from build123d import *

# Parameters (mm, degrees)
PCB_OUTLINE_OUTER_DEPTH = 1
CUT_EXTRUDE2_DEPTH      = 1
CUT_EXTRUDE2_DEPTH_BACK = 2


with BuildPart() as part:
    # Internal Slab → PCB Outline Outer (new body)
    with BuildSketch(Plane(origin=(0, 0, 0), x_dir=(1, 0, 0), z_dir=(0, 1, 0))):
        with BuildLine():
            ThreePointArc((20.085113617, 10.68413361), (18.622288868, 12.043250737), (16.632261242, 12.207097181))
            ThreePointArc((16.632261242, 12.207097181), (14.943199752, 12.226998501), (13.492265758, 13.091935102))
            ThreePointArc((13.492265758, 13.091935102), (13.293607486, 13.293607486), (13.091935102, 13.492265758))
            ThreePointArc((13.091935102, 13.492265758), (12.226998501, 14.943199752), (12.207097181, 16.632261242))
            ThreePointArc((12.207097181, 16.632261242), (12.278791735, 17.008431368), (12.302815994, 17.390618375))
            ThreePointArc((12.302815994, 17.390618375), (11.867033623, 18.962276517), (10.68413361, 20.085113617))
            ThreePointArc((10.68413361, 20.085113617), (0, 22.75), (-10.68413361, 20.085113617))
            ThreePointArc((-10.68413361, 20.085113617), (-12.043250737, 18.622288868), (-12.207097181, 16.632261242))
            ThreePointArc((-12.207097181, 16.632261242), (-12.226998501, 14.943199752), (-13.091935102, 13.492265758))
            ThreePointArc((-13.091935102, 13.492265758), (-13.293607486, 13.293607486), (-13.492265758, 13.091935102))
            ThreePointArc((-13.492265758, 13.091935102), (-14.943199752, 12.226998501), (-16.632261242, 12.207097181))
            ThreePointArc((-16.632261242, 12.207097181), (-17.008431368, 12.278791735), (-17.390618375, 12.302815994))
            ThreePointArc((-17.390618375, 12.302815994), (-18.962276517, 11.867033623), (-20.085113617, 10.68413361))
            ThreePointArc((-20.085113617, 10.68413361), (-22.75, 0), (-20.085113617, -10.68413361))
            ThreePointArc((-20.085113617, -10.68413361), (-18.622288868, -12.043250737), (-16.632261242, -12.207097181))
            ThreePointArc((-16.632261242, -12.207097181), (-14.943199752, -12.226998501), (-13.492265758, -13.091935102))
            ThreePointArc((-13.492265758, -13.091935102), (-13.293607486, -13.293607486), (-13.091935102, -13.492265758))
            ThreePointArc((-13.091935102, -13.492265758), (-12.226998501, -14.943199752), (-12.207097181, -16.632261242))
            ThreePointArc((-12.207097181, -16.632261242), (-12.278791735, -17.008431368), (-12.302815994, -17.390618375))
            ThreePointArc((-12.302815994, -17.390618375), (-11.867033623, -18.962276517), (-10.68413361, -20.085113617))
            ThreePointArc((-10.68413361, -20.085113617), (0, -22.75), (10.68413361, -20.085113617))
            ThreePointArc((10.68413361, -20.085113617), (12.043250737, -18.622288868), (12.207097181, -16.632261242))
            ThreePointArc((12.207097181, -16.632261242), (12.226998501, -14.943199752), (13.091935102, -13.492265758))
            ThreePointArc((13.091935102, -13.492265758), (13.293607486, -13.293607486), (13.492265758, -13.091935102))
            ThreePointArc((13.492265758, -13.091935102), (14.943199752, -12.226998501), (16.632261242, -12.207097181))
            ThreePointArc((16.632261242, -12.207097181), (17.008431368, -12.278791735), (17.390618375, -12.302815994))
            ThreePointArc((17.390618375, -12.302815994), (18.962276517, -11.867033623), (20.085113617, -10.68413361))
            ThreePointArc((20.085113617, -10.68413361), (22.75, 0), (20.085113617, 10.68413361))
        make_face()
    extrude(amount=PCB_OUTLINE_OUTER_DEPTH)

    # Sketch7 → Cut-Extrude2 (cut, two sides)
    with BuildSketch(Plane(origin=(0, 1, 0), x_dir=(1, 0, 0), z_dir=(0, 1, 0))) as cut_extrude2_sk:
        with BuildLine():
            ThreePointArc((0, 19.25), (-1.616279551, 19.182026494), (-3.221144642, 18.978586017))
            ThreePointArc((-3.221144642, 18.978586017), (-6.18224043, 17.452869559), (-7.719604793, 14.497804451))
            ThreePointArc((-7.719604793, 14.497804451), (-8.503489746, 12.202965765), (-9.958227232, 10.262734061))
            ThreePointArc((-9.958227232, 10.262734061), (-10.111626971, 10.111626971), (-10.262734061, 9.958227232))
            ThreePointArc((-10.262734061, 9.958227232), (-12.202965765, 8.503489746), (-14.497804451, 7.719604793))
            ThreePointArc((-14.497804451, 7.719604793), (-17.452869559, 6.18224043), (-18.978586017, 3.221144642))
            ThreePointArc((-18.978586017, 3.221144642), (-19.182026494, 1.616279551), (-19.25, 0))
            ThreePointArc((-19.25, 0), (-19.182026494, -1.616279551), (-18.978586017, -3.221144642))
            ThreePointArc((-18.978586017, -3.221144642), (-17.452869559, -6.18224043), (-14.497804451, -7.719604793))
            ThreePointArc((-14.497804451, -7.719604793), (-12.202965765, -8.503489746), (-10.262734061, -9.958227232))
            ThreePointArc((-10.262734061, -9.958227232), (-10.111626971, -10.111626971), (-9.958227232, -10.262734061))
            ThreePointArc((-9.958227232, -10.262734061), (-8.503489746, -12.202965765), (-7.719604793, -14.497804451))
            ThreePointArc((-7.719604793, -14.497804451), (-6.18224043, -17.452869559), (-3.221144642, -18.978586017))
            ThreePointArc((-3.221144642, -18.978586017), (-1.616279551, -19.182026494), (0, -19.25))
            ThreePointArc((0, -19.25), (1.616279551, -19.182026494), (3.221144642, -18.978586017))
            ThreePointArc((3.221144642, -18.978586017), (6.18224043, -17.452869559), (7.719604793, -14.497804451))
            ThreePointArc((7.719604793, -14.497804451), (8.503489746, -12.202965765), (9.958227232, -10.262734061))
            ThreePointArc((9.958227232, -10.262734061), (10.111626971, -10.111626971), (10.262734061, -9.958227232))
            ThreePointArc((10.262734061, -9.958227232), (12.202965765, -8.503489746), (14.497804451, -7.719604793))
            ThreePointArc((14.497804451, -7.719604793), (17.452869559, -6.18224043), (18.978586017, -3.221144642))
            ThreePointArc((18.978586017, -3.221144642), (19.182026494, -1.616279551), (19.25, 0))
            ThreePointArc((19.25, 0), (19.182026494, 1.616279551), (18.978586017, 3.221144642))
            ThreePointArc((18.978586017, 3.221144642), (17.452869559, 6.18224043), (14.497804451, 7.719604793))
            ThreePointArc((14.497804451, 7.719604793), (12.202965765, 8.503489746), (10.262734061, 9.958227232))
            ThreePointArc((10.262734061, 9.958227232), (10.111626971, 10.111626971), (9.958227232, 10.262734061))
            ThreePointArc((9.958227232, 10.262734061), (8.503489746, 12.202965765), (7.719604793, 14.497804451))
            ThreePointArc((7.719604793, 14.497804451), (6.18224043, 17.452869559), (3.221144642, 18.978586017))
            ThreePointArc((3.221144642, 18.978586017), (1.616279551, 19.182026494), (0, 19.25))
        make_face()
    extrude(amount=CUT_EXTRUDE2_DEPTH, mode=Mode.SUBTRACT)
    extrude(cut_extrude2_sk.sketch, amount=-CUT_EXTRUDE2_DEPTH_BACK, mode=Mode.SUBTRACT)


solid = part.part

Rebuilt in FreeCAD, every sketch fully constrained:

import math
import FreeCAD as App
import Part
import Sketcher
from FreeCAD import Vector

doc = App.newDocument("Part")
body = doc.addObject("PartDesign::Body", "Body")

sketch1 = doc.addObject("Sketcher::SketchObject", "Sketch")
body.addObject(sketch1)
sketch1.AttachmentSupport = (doc.XZ_Plane, [""])
sketch1.MapMode = "FlatFace"
sketch1.addGeometry([
    Part.ArcOfCircle(Part.Circle(Vector(17.4, -9.3, 0), Vector(0, 0, 1), 3.1), math.radians(-104), math.radians(-28)),
    Part.ArcOfCircle(Part.Circle(Vector(15.8, -15.4, 0), Vector(0, 0, 1), 3.2), math.radians(76), math.radians(136)),
    Part.ArcOfCircle(Part.Circle(Vector(0, 0, 0), Vector(0, 0, 1), 18.8), math.radians(-45.86), math.radians(-44.14)),
    Part.ArcOfCircle(Part.Circle(Vector(15.4, -15.8, 0), Vector(0, 0, 1), 3.2), math.radians(134), math.radians(194)),
    Part.ArcOfCircle(Part.Circle(Vector(9.3, -17.4, 0), Vector(0, 0, 1), 3.1), math.radians(0), math.radians(14.39)),
    Part.ArcOfCircle(Part.Circle(Vector(9.3, -17.4, 0), Vector(0, 0, 1), 3.1), math.radians(-62), math.radians(0)),
    Part.ArcOfCircle(Part.Circle(Vector(0, 0, 0), Vector(0, 0, 1), 22.8), math.radians(-118), math.radians(-62)),
    Part.ArcOfCircle(Part.Circle(Vector(-9.3, -17.4, 0), Vector(0, 0, 1), 3.1), math.radians(166), math.radians(242)),
    Part.ArcOfCircle(Part.Circle(Vector(-15.4, -15.8, 0), Vector(0, 0, 1), 3.2), math.radians(-14), math.radians(46)),
    Part.ArcOfCircle(Part.Circle(Vector(0, 0, 0), Vector(0, 0, 1), 18.8), math.radians(-135.86), math.radians(-134.14)),
    Part.ArcOfCircle(Part.Circle(Vector(-15.8, -15.4, 0), Vector(0, 0, 1), 3.2), math.radians(44), math.radians(104)),
    Part.ArcOfCircle(Part.Circle(Vector(-17.4, -9.3, 0), Vector(0, 0, 1), 3.1), math.radians(-90), math.radians(-75.61)),
    Part.ArcOfCircle(Part.Circle(Vector(-17.4, -9.3, 0), Vector(0, 0, 1), 3.1), math.radians(-152), math.radians(-90)),
    Part.ArcOfCircle(Part.Circle(Vector(0, 0, 0), Vector(0, 0, 1), 22.8), math.radians(152), math.radians(208)),
    Part.ArcOfCircle(Part.Circle(Vector(-17.4, 9.3, 0), Vector(0, 0, 1), 3.1), math.radians(76), math.radians(152)),
    Part.ArcOfCircle(Part.Circle(Vector(-15.8, 15.4, 0), Vector(0, 0, 1), 3.2), math.radians(-104), math.radians(-44)),
    Part.ArcOfCircle(Part.Circle(Vector(0, 0, 0), Vector(0, 0, 1), 18.8), math.radians(134.14), math.radians(135.86)),
    Part.ArcOfCircle(Part.Circle(Vector(-15.4, 15.8, 0), Vector(0, 0, 1), 3.2), math.radians(-46), math.radians(14)),
    Part.ArcOfCircle(Part.Circle(Vector(-9.3, 17.4, 0), Vector(0, 0, 1), 3.1), math.radians(-180), math.radians(-165.61)),
    Part.ArcOfCircle(Part.Circle(Vector(-9.3, 17.4, 0), Vector(0, 0, 1), 3.1), math.radians(118), math.radians(180)),
    Part.ArcOfCircle(Part.Circle(Vector(0, 0, 0), Vector(0, 0, 1), 22.8), math.radians(62), math.radians(118)),
    Part.ArcOfCircle(Part.Circle(Vector(9.3, 17.4, 0), Vector(0, 0, 1), 3.1), math.radians(-14), math.radians(62)),
    Part.ArcOfCircle(Part.Circle(Vector(15.4, 15.8, 0), Vector(0, 0, 1), 3.2), math.radians(166), math.radians(226)),
    Part.ArcOfCircle(Part.Circle(Vector(0, 0, 0), Vector(0, 0, 1), 18.8), math.radians(44.14), math.radians(45.86)),
    Part.ArcOfCircle(Part.Circle(Vector(15.8, 15.4, 0), Vector(0, 0, 1), 3.2), math.radians(-136), math.radians(-76)),
    Part.ArcOfCircle(Part.Circle(Vector(17.4, 9.3, 0), Vector(0, 0, 1), 3.1), math.radians(90), math.radians(104.39)),
    Part.ArcOfCircle(Part.Circle(Vector(17.4, 9.3, 0), Vector(0, 0, 1), 3.1), math.radians(28), math.radians(90)),
    Part.ArcOfCircle(Part.Circle(Vector(0, 0, 0), Vector(0, 0, 1), 22.8), math.radians(-28), math.radians(28)),
], False)
sketch1.addConstraint([
    Sketcher.Constraint("Tangent", 0, 1, 1, 1),
    Sketcher.Constraint("Tangent", 1, 2, 2, 2),
    Sketcher.Constraint("Tangent", 2, 1, 3, 1),
    Sketcher.Constraint("Tangent", 3, 2, 4, 2),
    Sketcher.Constraint("Tangent", 4, 1, 5, 2),
    Sketcher.Constraint("Tangent", 5, 1, 6, 2),
    Sketcher.Constraint("Tangent", 6, 1, 7, 2),
    Sketcher.Constraint("Tangent", 7, 1, 8, 1),
    Sketcher.Constraint("Tangent", 8, 2, 9, 2),
    Sketcher.Constraint("Tangent", 9, 1, 10, 1),
    Sketcher.Constraint("Tangent", 10, 2, 11, 2),
    Sketcher.Constraint("Tangent", 11, 1, 12, 2),
    Sketcher.Constraint("Tangent", 12, 1, 13, 2),
    Sketcher.Constraint("Tangent", 13, 1, 14, 2),
    Sketcher.Constraint("Tangent", 14, 1, 15, 1),
    Sketcher.Constraint("Tangent", 15, 2, 16, 2),
    Sketcher.Constraint("Tangent", 16, 1, 17, 1),
    Sketcher.Constraint("Tangent", 17, 2, 18, 2),
    Sketcher.Constraint("Tangent", 18, 1, 19, 2),
    Sketcher.Constraint("Tangent", 19, 1, 20, 2),
    Sketcher.Constraint("Tangent", 20, 1, 21, 2),
    Sketcher.Constraint("Tangent", 21, 1, 22, 1),
    Sketcher.Constraint("Tangent", 22, 2, 23, 2),
    Sketcher.Constraint("Tangent", 23, 1, 24, 1),
    Sketcher.Constraint("Tangent", 24, 2, 25, 2),
    Sketcher.Constraint("Tangent", 25, 1, 26, 2),
    Sketcher.Constraint("Tangent", 26, 1, 27, 2),
    Sketcher.Constraint("Tangent", 27, 1, 0, 2),
    Sketcher.Constraint("Coincident", 2, 3, -1, 1),
    Sketcher.Constraint("Coincident", 6, 3, -1, 1),
    Sketcher.Constraint("Coincident", 9, 3, -1, 1),
    Sketcher.Constraint("Coincident", 13, 3, -1, 1),
    Sketcher.Constraint("Coincident", 16, 3, -1, 1),
    Sketcher.Constraint("Coincident", 20, 3, -1, 1),
    Sketcher.Constraint("Coincident", 23, 3, -1, 1),
    Sketcher.Constraint("Coincident", 27, 3, -1, 1),
    Sketcher.Constraint("Equal", 1, 3),
    Sketcher.Constraint("Equal", 0, 4),
    Sketcher.Constraint("Equal", 4, 5),
    Sketcher.Constraint("Equal", 5, 7),
    Sketcher.Constraint("Equal", 3, 8),
    Sketcher.Constraint("Equal", 2, 9),
    Sketcher.Constraint("Equal", 8, 10),
    Sketcher.Constraint("Equal", 7, 11),
    Sketcher.Constraint("Equal", 11, 12),
    Sketcher.Constraint("Equal", 6, 13),
    Sketcher.Constraint("Equal", 12, 14),
    Sketcher.Constraint("Equal", 10, 15),
    Sketcher.Constraint("Equal", 9, 16),
    Sketcher.Constraint("Equal", 15, 17),
    Sketcher.Constraint("Equal", 14, 18),
    Sketcher.Constraint("Equal", 18, 19),
    Sketcher.Constraint("Equal", 13, 20),
    Sketcher.Constraint("Equal", 19, 21),
    Sketcher.Constraint("Equal", 17, 22),
    Sketcher.Constraint("Equal", 16, 23),
    Sketcher.Constraint("Equal", 22, 24),
    Sketcher.Constraint("Equal", 21, 25),
    Sketcher.Constraint("Equal", 25, 26),
    Sketcher.Constraint("Equal", 20, 27),
    Sketcher.Constraint("Symmetric", 4, 1, 18, 1, -1, 1),
    Sketcher.Constraint("Symmetric", 11, 1, 25, 1, -1, 1),
    Sketcher.Constraint("Horizontal", 5, 3, 7, 3),
    Sketcher.Constraint("Horizontal", 1, 3, 10, 3),
    Sketcher.Constraint("Horizontal", 19, 3, 21, 3),
    Sketcher.Constraint("Horizontal", 15, 3, 24, 3),
    Sketcher.Constraint("Horizontal", 7, 3, 4, 1),
    Sketcher.Constraint("Vertical", 14, 3, 11, 1),
    Sketcher.Constraint("Radius", 1, 3.25),
    Sketcher.Constraint("Radius", 6, 22.75),
    Sketcher.Constraint("Radius", 0, 3.052),
    Sketcher.Constraint("Radius", 2, 18.800004),
    Sketcher.Constraint("DistanceY", 1, 2, 27, 1, 2.407801),
    Sketcher.Constraint("DistanceX", -1, 1, 3, 3, 15.355169),
])
pad1 = doc.addObject("PartDesign::Pad", "Pad")
body.addObject(pad1)
pad1.Profile = sketch1
pad1.Length = 1
pad1.Reversed = True

sketch2 = doc.addObject("Sketcher::SketchObject", "Sketch001")
body.addObject(sketch2)
sketch2.AttachmentSupport = (doc.XZ_Plane, [""])
sketch2.MapMode = "FlatFace"
sketch2.AttachmentOffset = App.Placement(Vector(0, 0, -1), App.Rotation())
sketch2.addGeometry([
    Part.ArcOfCircle(Part.Circle(Vector(0, 0, 0), Vector(0, 0, 1), 19.25), math.radians(-99.63), math.radians(-90)),
    Part.ArcOfCircle(Part.Circle(Vector(-2.3, -13.56, 0), Vector(0, 0, 1), 5.5), math.radians(-170), math.radians(-100)),
    Part.ArcOfCircle(Part.Circle(Vector(-15.36, -15.82, 0), Vector(0, 0, 1), 7.75), math.radians(10), math.radians(46)),
    Part.ArcOfCircle(Part.Circle(Vector(0, 0, 0), Vector(0, 0, 1), 14.3), math.radians(-135.86), math.radians(-134.14)),
    Part.ArcOfCircle(Part.Circle(Vector(-15.82, -15.36, 0), Vector(0, 0, 1), 7.75), math.radians(44), math.radians(80)),
    Part.ArcOfCircle(Part.Circle(Vector(-13.56, -2.3, 0), Vector(0, 0, 1), 5.5), math.radians(-170), math.radians(-100)),
    Part.ArcOfCircle(Part.Circle(Vector(0, 0, 0), Vector(0, 0, 1), 19.25), math.radians(180), math.radians(189.63)),
    Part.ArcOfCircle(Part.Circle(Vector(0, 0, 0), Vector(0, 0, 1), 19.25), math.radians(170.37), math.radians(180)),
    Part.ArcOfCircle(Part.Circle(Vector(-13.56, 2.3, 0), Vector(0, 0, 1), 5.5), math.radians(100), math.radians(170)),
    Part.ArcOfCircle(Part.Circle(Vector(-15.82, 15.36, 0), Vector(0, 0, 1), 7.75), math.radians(-80), math.radians(-44)),
    Part.ArcOfCircle(Part.Circle(Vector(0, 0, 0), Vector(0, 0, 1), 14.3), math.radians(134.14), math.radians(135.86)),
    Part.ArcOfCircle(Part.Circle(Vector(-15.36, 15.82, 0), Vector(0, 0, 1), 7.75), math.radians(-46), math.radians(-10)),
    Part.ArcOfCircle(Part.Circle(Vector(-2.3, 13.56, 0), Vector(0, 0, 1), 5.5), math.radians(100), math.radians(170)),
    Part.ArcOfCircle(Part.Circle(Vector(0, 0, 0), Vector(0, 0, 1), 19.25), math.radians(90), math.radians(99.63)),
    Part.ArcOfCircle(Part.Circle(Vector(0, 0, 0), Vector(0, 0, 1), 19.25), math.radians(80.37), math.radians(90)),
    Part.ArcOfCircle(Part.Circle(Vector(2.3, 13.56, 0), Vector(0, 0, 1), 5.5), math.radians(10), math.radians(80)),
    Part.ArcOfCircle(Part.Circle(Vector(15.36, 15.82, 0), Vector(0, 0, 1), 7.75), math.radians(-170), math.radians(-134)),
    Part.ArcOfCircle(Part.Circle(Vector(0, 0, 0), Vector(0, 0, 1), 14.3), math.radians(44.14), math.radians(45.86)),
    Part.ArcOfCircle(Part.Circle(Vector(15.82, 15.36, 0), Vector(0, 0, 1), 7.75), math.radians(-136), math.radians(-100)),
    Part.ArcOfCircle(Part.Circle(Vector(13.56, 2.3, 0), Vector(0, 0, 1), 5.5), math.radians(10), math.radians(80)),
    Part.ArcOfCircle(Part.Circle(Vector(0, 0, 0), Vector(0, 0, 1), 19.25), math.radians(0), math.radians(9.63)),
    Part.ArcOfCircle(Part.Circle(Vector(0, 0, 0), Vector(0, 0, 1), 19.25), math.radians(-9.63), math.radians(0)),
    Part.ArcOfCircle(Part.Circle(Vector(13.56, -2.3, 0), Vector(0, 0, 1), 5.5), math.radians(-80), math.radians(-10)),
    Part.ArcOfCircle(Part.Circle(Vector(15.82, -15.36, 0), Vector(0, 0, 1), 7.75), math.radians(100), math.radians(136)),
    Part.ArcOfCircle(Part.Circle(Vector(0, 0, 0), Vector(0, 0, 1), 14.3), math.radians(-45.86), math.radians(-44.14)),
    Part.ArcOfCircle(Part.Circle(Vector(15.36, -15.82, 0), Vector(0, 0, 1), 7.75), math.radians(134), math.radians(170)),
    Part.ArcOfCircle(Part.Circle(Vector(2.3, -13.56, 0), Vector(0, 0, 1), 5.5), math.radians(-80), math.radians(-10)),
    Part.ArcOfCircle(Part.Circle(Vector(0, 0, 0), Vector(0, 0, 1), 19.25), math.radians(-90), math.radians(-80.37)),
], False)
sketch2.addConstraint([
    Sketcher.Constraint("Tangent", 0, 1, 1, 2),
    Sketcher.Constraint("Tangent", 1, 1, 2, 1),
    Sketcher.Constraint("Tangent", 2, 2, 3, 2),
    Sketcher.Constraint("Tangent", 3, 1, 4, 1),
    Sketcher.Constraint("Tangent", 4, 2, 5, 2),
    Sketcher.Constraint("Tangent", 5, 1, 6, 2),
    Sketcher.Constraint("Tangent", 6, 1, 7, 2),
    Sketcher.Constraint("Tangent", 7, 1, 8, 2),
    Sketcher.Constraint("Tangent", 8, 1, 9, 1),
    Sketcher.Constraint("Tangent", 9, 2, 10, 2),
    Sketcher.Constraint("Tangent", 10, 1, 11, 1),
    Sketcher.Constraint("Tangent", 11, 2, 12, 2),
    Sketcher.Constraint("Tangent", 12, 1, 13, 2),
    Sketcher.Constraint("Tangent", 13, 1, 14, 2),
    Sketcher.Constraint("Tangent", 14, 1, 15, 2),
    Sketcher.Constraint("Tangent", 15, 1, 16, 1),
    Sketcher.Constraint("Tangent", 16, 2, 17, 2),
    Sketcher.Constraint("Tangent", 17, 1, 18, 1),
    Sketcher.Constraint("Tangent", 18, 2, 19, 2),
    Sketcher.Constraint("Tangent", 19, 1, 20, 2),
    Sketcher.Constraint("Tangent", 20, 1, 21, 2),
    Sketcher.Constraint("Tangent", 21, 1, 22, 2),
    Sketcher.Constraint("Tangent", 22, 1, 23, 1),
    Sketcher.Constraint("Tangent", 23, 2, 24, 2),
    Sketcher.Constraint("Tangent", 24, 1, 25, 1),
    Sketcher.Constraint("Tangent", 25, 2, 26, 2),
    Sketcher.Constraint("Tangent", 26, 1, 27, 2),
    Sketcher.Constraint("Tangent", 27, 1, 0, 2),
    Sketcher.Constraint("Coincident", 0, 3, -1, 1),
    Sketcher.Constraint("Coincident", 3, 3, -1, 1),
    Sketcher.Constraint("Coincident", 6, 3, -1, 1),
    Sketcher.Constraint("Coincident", 10, 3, -1, 1),
    Sketcher.Constraint("Coincident", 13, 3, -1, 1),
    Sketcher.Constraint("Coincident", 17, 3, -1, 1),
    Sketcher.Constraint("Coincident", 20, 3, -1, 1),
    Sketcher.Constraint("Coincident", 24, 3, -1, 1),
    Sketcher.Constraint("Equal", 2, 4),
    Sketcher.Constraint("Equal", 1, 5),
    Sketcher.Constraint("Equal", 0, 6),
    Sketcher.Constraint("Equal", 6, 7),
    Sketcher.Constraint("Equal", 5, 8),
    Sketcher.Constraint("Equal", 4, 9),
    Sketcher.Constraint("Equal", 3, 10),
    Sketcher.Constraint("Equal", 9, 11),
    Sketcher.Constraint("Equal", 8, 12),
    Sketcher.Constraint("Equal", 7, 13),
    Sketcher.Constraint("Equal", 13, 14),
    Sketcher.Constraint("Equal", 12, 15),
    Sketcher.Constraint("Equal", 11, 16),
    Sketcher.Constraint("Equal", 10, 17),
    Sketcher.Constraint("Equal", 16, 18),
    Sketcher.Constraint("Equal", 15, 19),
    Sketcher.Constraint("Equal", 14, 20),
    Sketcher.Constraint("Equal", 20, 21),
    Sketcher.Constraint("Equal", 19, 22),
    Sketcher.Constraint("Equal", 18, 23),
    Sketcher.Constraint("Equal", 17, 24),
    Sketcher.Constraint("Equal", 23, 25),
    Sketcher.Constraint("Equal", 22, 26),
    Sketcher.Constraint("Equal", 21, 27),
    Sketcher.Constraint("PointOnObject", 6, 1, -1),
    Sketcher.Constraint("PointOnObject", 13, 1, -2),
    Sketcher.Constraint("PointOnObject", 20, 1, -1),
    Sketcher.Constraint("PointOnObject", 27, 1, -2),
    Sketcher.Constraint("Horizontal", 12, 3, 15, 3),
    Sketcher.Constraint("Horizontal", 9, 3, 18, 3),
    Sketcher.Constraint("Horizontal", 5, 3, 22, 3),
    Sketcher.Constraint("Horizontal", 2, 3, 25, 3),
    Sketcher.Constraint("Vertical", 5, 3, 8, 3),
    Sketcher.Constraint("Vertical", 2, 3, 11, 3),
    Sketcher.Constraint("Radius", 1, 5.5),
    Sketcher.Constraint("Radius", 0, 19.25),
    Sketcher.Constraint("Radius", 2, 7.75),
    Sketcher.Constraint("Radius", 3, 14.300003),
    Sketcher.Constraint("DistanceY", 2, 3, 1, 1, 1.326901),
    Sketcher.Constraint("DistanceX", 4, 3, 1, 1, 8.105101),
])
pocket1 = doc.addObject("PartDesign::Pocket", "Pocket")
body.addObject(pocket1)
pocket1.Profile = sketch2
pocket1.Type = "ThroughAll"
pocket1.Midplane = True

doc.recompute()
